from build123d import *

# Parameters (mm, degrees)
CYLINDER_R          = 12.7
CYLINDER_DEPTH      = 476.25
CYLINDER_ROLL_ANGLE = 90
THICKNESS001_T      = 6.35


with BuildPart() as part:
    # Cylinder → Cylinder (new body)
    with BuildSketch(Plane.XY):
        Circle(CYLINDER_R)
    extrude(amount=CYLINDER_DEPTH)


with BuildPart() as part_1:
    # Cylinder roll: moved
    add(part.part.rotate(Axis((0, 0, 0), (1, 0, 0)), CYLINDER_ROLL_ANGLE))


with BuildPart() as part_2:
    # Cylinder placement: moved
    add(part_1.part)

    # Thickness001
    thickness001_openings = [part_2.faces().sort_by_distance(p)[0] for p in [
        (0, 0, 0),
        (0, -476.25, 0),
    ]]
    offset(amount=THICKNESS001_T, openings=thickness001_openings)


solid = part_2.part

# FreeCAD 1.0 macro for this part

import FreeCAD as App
import Part
import Sketcher
from FreeCAD import Vector
Q = App.Units.Quantity


def faces_at(feature, points):
    """Names of the faces that lie closest to the given points."""
    faces = feature.Shape.Faces
    near = lambda p: min(range(len(faces)), key=lambda i: faces[i].distToShape(Part.Vertex(*p))[0])
    return sorted({f"Face{near(p) + 1}" for p in points})

doc = App.newDocument("Part")
body = doc.addObject("PartDesign::Body", "Body")

# Sketch on XY plane
sketch1 = doc.addObject("Sketcher::SketchObject", "Sketch")
body.addObject(sketch1)
sketch1.AttachmentSupport = (doc.XY_Plane, [""])
sketch1.MapMode = "FlatFace"
sketch1.addGeometry(Part.Circle(Vector(0, 0, 0), Vector(0, 0, 1), 13), False)
sketch1.addConstraint([
    Sketcher.Constraint("Coincident", 0, 3, -1, 1),
    Sketcher.Constraint("Diameter", 0, Q("1 in")),
])
pad1 = doc.addObject("PartDesign::Pad", "Pad")
body.addObject(pad1)
pad1.Profile = sketch1
pad1.Length = Q("18.75 in")
body2 = doc.addObject("PartDesign::Body", "Body001")
doc.recompute()

body.Placement = App.Placement(Vector(0, 0, 0), App.Rotation(Vector(1, 0, 0), 90))
boolean = doc.addObject("PartDesign::Boolean", "Boolean")
body2.addObject(boolean)
boolean.Type = "Fuse"
boolean.addObjects([body])
doc.recompute()

thickness = doc.addObject("PartDesign::Thickness", "Thickness")
body2.addObject(thickness)
thickness.Base = (boolean, faces_at(boolean, [(0, 0, 0), (0, -476.25, 0)]))
thickness.Value = Q("0.25 in")
thickness.Reversed = False
thickness.Join = "Arc"

doc.recompute()
